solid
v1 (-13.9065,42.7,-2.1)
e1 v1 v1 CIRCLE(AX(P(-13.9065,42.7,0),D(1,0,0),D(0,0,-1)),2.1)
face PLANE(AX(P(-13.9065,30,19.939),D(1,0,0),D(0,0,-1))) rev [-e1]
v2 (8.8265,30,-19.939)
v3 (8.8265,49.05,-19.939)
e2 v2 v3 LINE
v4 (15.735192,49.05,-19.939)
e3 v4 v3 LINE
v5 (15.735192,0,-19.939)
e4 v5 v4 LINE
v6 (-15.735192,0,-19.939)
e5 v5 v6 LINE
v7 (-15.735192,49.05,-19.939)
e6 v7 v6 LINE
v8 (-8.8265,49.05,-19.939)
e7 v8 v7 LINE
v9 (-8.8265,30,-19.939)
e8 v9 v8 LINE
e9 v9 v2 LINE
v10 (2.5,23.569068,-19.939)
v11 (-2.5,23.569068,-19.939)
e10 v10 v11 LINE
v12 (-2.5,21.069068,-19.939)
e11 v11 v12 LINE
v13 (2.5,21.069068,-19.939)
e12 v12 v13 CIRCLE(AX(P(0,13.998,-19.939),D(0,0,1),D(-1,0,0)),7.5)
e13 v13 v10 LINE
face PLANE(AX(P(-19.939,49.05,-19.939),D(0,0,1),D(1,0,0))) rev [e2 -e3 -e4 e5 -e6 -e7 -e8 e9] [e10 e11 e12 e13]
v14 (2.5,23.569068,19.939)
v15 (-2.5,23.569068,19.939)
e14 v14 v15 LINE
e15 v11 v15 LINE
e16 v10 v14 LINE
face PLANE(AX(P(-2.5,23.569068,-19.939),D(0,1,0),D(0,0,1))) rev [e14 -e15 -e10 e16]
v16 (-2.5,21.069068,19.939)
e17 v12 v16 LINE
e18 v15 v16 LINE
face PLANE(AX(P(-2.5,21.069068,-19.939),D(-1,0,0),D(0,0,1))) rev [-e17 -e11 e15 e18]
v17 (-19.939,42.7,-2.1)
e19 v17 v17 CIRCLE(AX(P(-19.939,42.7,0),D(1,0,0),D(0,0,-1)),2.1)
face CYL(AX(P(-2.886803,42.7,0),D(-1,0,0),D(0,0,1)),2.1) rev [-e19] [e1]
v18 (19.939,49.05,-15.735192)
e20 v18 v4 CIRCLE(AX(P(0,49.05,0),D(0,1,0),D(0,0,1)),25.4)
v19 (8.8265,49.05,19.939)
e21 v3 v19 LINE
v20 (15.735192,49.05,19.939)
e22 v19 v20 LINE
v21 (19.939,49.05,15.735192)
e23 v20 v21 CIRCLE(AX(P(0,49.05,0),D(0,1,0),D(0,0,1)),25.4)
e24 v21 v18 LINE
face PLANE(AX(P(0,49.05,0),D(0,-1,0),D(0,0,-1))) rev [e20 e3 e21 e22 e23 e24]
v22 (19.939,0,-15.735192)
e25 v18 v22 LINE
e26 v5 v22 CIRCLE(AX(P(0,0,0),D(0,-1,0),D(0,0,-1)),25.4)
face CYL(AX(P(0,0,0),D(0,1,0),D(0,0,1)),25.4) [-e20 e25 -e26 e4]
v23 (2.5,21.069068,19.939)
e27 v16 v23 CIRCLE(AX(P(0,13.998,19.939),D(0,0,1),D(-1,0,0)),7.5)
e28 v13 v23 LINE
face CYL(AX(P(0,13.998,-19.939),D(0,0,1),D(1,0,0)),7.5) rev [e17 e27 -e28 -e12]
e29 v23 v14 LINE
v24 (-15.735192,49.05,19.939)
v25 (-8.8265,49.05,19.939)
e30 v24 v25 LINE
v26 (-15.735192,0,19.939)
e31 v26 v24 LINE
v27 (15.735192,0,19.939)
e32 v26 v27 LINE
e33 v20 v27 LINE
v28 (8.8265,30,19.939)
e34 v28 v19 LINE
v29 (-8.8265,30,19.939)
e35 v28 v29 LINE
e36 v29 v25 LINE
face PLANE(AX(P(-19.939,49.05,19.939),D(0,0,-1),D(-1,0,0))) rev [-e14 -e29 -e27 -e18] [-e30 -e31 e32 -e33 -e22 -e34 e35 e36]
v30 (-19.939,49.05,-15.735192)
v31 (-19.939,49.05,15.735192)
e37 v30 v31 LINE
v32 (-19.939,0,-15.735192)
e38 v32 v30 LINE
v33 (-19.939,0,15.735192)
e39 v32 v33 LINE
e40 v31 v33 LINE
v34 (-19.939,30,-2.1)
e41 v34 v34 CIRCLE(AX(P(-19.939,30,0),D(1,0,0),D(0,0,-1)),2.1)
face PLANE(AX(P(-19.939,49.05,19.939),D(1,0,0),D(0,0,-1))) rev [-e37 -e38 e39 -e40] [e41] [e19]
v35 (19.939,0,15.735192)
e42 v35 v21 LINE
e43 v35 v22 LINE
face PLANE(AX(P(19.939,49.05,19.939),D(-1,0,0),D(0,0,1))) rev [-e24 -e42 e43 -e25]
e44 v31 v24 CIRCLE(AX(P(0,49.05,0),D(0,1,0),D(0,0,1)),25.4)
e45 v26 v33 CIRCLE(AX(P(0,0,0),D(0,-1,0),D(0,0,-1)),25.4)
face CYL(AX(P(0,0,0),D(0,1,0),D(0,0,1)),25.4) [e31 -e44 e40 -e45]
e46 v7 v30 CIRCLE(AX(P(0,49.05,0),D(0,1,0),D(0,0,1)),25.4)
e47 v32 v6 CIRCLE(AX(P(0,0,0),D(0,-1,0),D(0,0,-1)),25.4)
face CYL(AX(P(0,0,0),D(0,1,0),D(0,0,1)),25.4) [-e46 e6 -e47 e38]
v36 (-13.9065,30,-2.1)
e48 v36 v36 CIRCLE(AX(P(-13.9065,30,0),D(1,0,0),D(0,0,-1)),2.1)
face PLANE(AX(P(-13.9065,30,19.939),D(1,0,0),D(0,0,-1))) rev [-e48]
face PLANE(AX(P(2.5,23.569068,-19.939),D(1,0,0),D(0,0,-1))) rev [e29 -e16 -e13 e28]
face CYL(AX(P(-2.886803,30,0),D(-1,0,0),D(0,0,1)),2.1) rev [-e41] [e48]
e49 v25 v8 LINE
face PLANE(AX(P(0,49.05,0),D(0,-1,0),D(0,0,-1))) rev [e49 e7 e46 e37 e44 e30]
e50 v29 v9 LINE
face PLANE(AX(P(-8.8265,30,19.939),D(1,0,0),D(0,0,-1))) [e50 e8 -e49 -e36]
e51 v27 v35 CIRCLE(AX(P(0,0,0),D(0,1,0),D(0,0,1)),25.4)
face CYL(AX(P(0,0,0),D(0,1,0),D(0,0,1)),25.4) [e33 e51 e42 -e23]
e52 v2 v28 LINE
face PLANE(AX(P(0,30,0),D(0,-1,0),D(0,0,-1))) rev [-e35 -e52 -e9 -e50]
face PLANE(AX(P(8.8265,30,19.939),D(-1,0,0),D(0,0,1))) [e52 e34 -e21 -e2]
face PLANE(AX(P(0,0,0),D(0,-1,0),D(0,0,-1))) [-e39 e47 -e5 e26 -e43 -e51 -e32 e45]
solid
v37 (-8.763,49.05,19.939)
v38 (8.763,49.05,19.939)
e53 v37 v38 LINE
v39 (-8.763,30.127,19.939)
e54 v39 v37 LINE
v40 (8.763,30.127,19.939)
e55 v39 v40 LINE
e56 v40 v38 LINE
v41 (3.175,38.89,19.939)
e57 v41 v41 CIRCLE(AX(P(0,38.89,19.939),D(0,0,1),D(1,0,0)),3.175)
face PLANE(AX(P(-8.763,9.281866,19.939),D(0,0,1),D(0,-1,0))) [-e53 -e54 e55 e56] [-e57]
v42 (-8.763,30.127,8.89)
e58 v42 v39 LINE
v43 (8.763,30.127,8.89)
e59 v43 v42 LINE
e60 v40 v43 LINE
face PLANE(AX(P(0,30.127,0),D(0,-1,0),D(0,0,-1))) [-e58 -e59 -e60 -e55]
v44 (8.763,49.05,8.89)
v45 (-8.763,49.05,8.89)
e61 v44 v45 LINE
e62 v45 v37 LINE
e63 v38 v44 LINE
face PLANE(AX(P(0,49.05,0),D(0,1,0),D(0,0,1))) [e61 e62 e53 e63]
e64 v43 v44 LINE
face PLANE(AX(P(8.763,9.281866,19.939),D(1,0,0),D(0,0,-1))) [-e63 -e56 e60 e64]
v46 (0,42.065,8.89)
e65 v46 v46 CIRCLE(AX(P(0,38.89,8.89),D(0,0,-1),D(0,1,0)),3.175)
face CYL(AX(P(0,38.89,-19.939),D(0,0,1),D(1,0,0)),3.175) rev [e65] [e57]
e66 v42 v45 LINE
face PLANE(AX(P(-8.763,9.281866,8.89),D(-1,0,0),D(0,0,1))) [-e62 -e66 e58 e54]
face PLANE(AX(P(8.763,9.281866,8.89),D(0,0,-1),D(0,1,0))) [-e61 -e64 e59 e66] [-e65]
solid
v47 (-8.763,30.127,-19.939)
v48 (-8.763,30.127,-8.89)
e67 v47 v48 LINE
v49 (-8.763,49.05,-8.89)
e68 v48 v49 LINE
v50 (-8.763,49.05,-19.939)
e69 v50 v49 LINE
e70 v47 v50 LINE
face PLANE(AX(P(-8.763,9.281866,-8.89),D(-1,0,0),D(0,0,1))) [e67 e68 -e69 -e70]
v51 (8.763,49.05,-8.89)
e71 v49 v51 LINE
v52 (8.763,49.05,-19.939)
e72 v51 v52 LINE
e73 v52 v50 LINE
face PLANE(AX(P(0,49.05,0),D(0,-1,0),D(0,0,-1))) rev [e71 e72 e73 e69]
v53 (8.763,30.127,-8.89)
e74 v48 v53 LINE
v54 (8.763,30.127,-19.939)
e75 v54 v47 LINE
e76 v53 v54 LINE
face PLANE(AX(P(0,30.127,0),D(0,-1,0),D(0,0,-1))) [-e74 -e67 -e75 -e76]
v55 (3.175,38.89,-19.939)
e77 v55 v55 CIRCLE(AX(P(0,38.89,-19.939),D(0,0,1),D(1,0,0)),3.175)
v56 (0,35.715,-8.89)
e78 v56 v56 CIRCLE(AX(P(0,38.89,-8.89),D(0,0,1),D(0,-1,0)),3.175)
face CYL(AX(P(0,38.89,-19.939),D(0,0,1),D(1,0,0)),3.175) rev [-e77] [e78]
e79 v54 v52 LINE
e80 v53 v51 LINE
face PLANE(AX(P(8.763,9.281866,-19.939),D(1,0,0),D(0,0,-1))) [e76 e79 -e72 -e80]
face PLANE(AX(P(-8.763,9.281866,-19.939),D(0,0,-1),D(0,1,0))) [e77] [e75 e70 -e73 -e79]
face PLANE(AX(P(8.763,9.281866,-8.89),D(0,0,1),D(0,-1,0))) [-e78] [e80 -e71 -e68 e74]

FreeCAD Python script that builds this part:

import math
import FreeCAD as App
import Part
import Sketcher

V = App.Vector
Q = App.Units.Quantity


def add_polygon(sketch, points):
    """Adds a closed chain of lines whose ends are joined by coincident constraints."""
    first, n = sketch.GeometryCount, len(points)
    for a, b in zip(points, points[1:] + points[:1]):
        sketch.addGeometry(Part.LineSegment(App.Vector(*a, 0), App.Vector(*b, 0)), False)
    for i in range(n):
        sketch.addConstraint(Sketcher.Constraint("Coincident", first + i, 2, first + (i + 1) % n, 1))

doc = App.newDocument("Part")
body = doc.addObject("PartDesign::Body", "Body")

sketch1 = body.newObject("Sketcher::SketchObject", "Sketch")
sketch1.AttachmentSupport = (doc.getObject("XZ_Plane"), [""])
sketch1.MapMode = "FlatFace"
add_polygon(sketch1, [(-19.939, -19.939), (-19.939, 19.939), (19.939, 19.939), (19.939, -19.939)])
sketch1.addConstraint(Sketcher.Constraint("Vertical", 0))
sketch1.addConstraint(Sketcher.Constraint("Horizontal", 1))
sketch1.addConstraint(Sketcher.Constraint("Vertical", 2))
sketch1.addConstraint(Sketcher.Constraint("Horizontal", 3))
sketch1.addConstraint(Sketcher.Constraint("Symmetric", 0, 2, 2, 2, -1, 1))
sketch1.addConstraint(Sketcher.Constraint("Equal", 3, 0))
sketch1.addConstraint(Sketcher.Constraint("DistanceX", 1, 1, 1, 2, Q("1.57 in")))
pad1 = body.newObject("PartDesign::Pad", "Pad")
pad1.Profile = sketch1
pad1.Length = 49.05
pad1.Reversed = True

sketch2 = body.newObject("Sketcher::SketchObject", "Sketch001")
sketch2.AttachmentSupport = (doc.getObject("XZ_Plane"), [""])
sketch2.MapMode = "FlatFace"
sketch2.AttachmentOffset = App.Placement(V(0, 0, -49.05), App.Rotation())
add_polygon(sketch2, [(-8.8265, 19.939), (-8.8265, -19.939), (8.8265, -19.939), (8.8265, 19.939)])
sketch2.addConstraint(Sketcher.Constraint("Vertical", 0))
sketch2.addConstraint(Sketcher.Constraint("Horizontal", 1))
sketch2.addConstraint(Sketcher.Constraint("Vertical", 2))
sketch2.addConstraint(Sketcher.Constraint("Horizontal", 3))
sketch2.addConstraint(Sketcher.Constraint("Symmetric", 0, 2, 2, 2, -1, 1))
sketch2.addConstraint(Sketcher.Constraint("DistanceY", 0, 2, 0, 1, Q("1.57 in")))
sketch2.addConstraint(Sketcher.Constraint("DistanceX", 1, 1, 1, 2, Q("0.695 in")))
pocket1 = body.newObject("PartDesign::Pocket", "Pocket")
pocket1.Profile = sketch2
pocket1.Length = Q("0.75 in")
pocket1.Reversed = True

sketch3 = body.newObject("Sketcher::SketchObject", "Sketch002")
sketch3.AttachmentSupport = (doc.getObject("XZ_Plane"), [""])
sketch3.MapMode = "FlatFace"
sketch3.AttachmentOffset = App.Placement(V(0, 0, -49.05), App.Rotation())
sketch3.addGeometry(Part.Circle(V(0, 0, 0), V(0, 0, 1), 30.48), False)
sketch3.addGeometry(Part.Circle(V(0, 0, 0), V(0, 0, 1), 25.4), False)
sketch3.addConstraint(Sketcher.Constraint("Coincident", 0, 3, -1, 1))
sketch3.addConstraint(Sketcher.Constraint("Coincident", 1, 3, -1, 1))
sketch3.addConstraint(Sketcher.Constraint("Diameter", 1, Q("2 in")))
sketch3.addConstraint(Sketcher.Constraint("Diameter", 0, Q("2.4 in")))
pocket2 = body.newObject("PartDesign::Pocket", "Pocket001")
pocket2.Profile = sketch3
pocket2.Type = "ThroughAll"
pocket2.Reversed = True

sketch4 = body.newObject("Sketcher::SketchObject", "Sketch003")
sketch4.AttachmentSupport = (doc.getObject("XY_Plane"), [""])
sketch4.MapMode = "FlatFace"
sketch4.AttachmentOffset = App.Placement(V(0, 0, 0.785 * 25.4), App.Rotation())
sketch4.addGeometry(Part.LineSegment(V(-2.5, 23.569068, 0), V(-2.5, 21.069068, 0)), False)
sketch4.addGeometry(Part.ArcOfCircle(Part.Circle(V(0, 13.998, 0), V(0, 0, 1), 7.5), math.radians(109.471221), math.radians(430.528779)), False)
sketch4.addGeometry(Part.LineSegment(V(2.5, 21.069068, 0), V(2.5, 23.569068, 0)), False)
sketch4.addGeometry(Part.LineSegment(V(2.5, 23.569068, 0), V(-2.5, 23.569068, 0)), False)
sketch4.addConstraint(Sketcher.Constraint("Coincident", 0, 2, 1, 1))
sketch4.addConstraint(Sketcher.Constraint("Coincident", 1, 2, 2, 1))
sketch4.addConstraint(Sketcher.Constraint("Coincident", 2, 2, 3, 1))
sketch4.addConstraint(Sketcher.Constraint("Coincident", 3, 2, 0, 1))
sketch4.addConstraint(Sketcher.Constraint("Vertical", 0))
sketch4.addConstraint(Sketcher.Constraint("Vertical", 2))
sketch4.addConstraint(Sketcher.Constraint("Horizontal", 3))
sketch4.addConstraint(Sketcher.Constraint("Symmetric", 0, 2, 1, 2, -2))
sketch4.addConstraint(Sketcher.Constraint("Radius", 1, Q("7.5 mm")))
sketch4.addConstraint(Sketcher.Constraint("DistanceX", 3, 2, 3, 1, Q("5 mm")))
sketch4.addConstraint(Sketcher.Constraint("DistanceY", 0, 2, 0, 1, Q("2.5 mm")))
sketch4.addConstraint(Sketcher.Constraint("DistanceY", -1, 1, 1, 3, Q("13.998 mm")))
pocket3 = body.newObject("PartDesign::Pocket", "Pocket002")
pocket3.Profile = sketch4
pocket3.Type = "ThroughAll"

sketch5 = body.newObject("Sketcher::SketchObject", "Sketch004")
sketch5.AttachmentSupport = (doc.getObject("YZ_Plane"), [""])
sketch5.MapMode = "FlatFace"
sketch5.AttachmentOffset = App.Placement(V(0, 0, -0.785 * 25.4), App.Rotation())
sketch5.addGeometry(Part.Circle(V(42.7, 0, 0), V(0, 0, 1), 2.1), False)
sketch5.addGeometry(Part.Circle(V(30, 0, 0), V(0, 0, 1), 2.1), False)
sketch5.addConstraint(Sketcher.Constraint("Equal", 0, 1))
sketch5.addConstraint(Sketcher.Constraint("PointOnObject", 0, 3, -1))
sketch5.addConstraint(Sketcher.Constraint("PointOnObject", 1, 3, -1))
sketch5.addConstraint(Sketcher.Constraint("DistanceX", 1, 3, 0, 3, Q("0.5 in")))
sketch5.addConstraint(Sketcher.Constraint("Diameter", 0, Q("4.2 mm")))
sketch5.addConstraint(Sketcher.Constraint("DistanceX", -1, 1, 0, 3, Q("42.7 mm")))
pocket4 = body.newObject("PartDesign::Pocket", "Pocket003")
pocket4.Profile = sketch5
pocket4.Length = Q("0.2375 in")
pocket4.Reversed = True
body2 = doc.addObject("PartDesign::Body", "Body001")

sketch6 = body2.newObject("Sketcher::SketchObject", "Sketch005")
sketch6.AttachmentSupport = (doc.getObject("XZ_Plane001"), [""])
sketch6.MapMode = "FlatFace"
sketch6.AttachmentOffset = App.Placement(V(0, 0, -49.05), App.Rotation())
add_polygon(sketch6, [(-8.763, 8.89), (-8.763, 19.939), (8.763, 19.939), (8.763, 8.89)])
sketch6.addConstraint(Sketcher.Constraint("Vertical", 0))
sketch6.addConstraint(Sketcher.Constraint("Horizontal", 1))
sketch6.addConstraint(Sketcher.Constraint("Vertical", 2))
sketch6.addConstraint(Sketcher.Constraint("Horizontal", 3))
sketch6.addConstraint(Sketcher.Constraint("DistanceX", 1, 1, 1, 2, Q("0.69 in")))
sketch6.addConstraint(Sketcher.Constraint("DistanceY", 0, 1, 0, 2, Q("0.435 in")))
sketch6.addConstraint(Sketcher.Constraint("DistanceY", -1, 1, 2, 2, Q("0.35 in")))
sketch6.addConstraint(Sketcher.Constraint("DistanceX", 0, 2, -1, 1, Q("0.345 in")))
pad2 = body2.newObject("PartDesign::Pad", "Pad001")
pad2.Profile = sketch6
pad2.Length = Q("0.745 in")
body3 = doc.addObject("PartDesign::Body", "Body002")

sketch7 = body3.newObject("Sketcher::SketchObject", "Sketch006")
sketch7.AttachmentSupport = (doc.getObject("XZ_Plane002"), [""])
sketch7.MapMode = "FlatFace"
sketch7.AttachmentOffset = App.Placement(V(0, 0, -49.05), App.Rotation())
add_polygon(sketch7, [(-8.763, -19.939), (-8.763, -8.89), (8.763, -8.89), (8.763, -19.939)])
sketch7.addConstraint(Sketcher.Constraint("Vertical", 0))
sketch7.addConstraint(Sketcher.Constraint("Horizontal", 1))
sketch7.addConstraint(Sketcher.Constraint("Vertical", 2))
sketch7.addConstraint(Sketcher.Constraint("Horizontal", 3))
sketch7.addConstraint(Sketcher.Constraint("DistanceX", 1, 1, 1, 2, Q("0.69 in")))
sketch7.addConstraint(Sketcher.Constraint("DistanceY", 0, 1, 0, 2, Q("0.435 in")))
sketch7.addConstraint(Sketcher.Constraint("DistanceY", 0, 2, -1, 1, Q("0.35 in")))
sketch7.addConstraint(Sketcher.Constraint("DistanceX", 0, 2, -1, 1, Q("0.345 in")))
pad3 = body3.newObject("PartDesign::Pad", "Pad002")
pad3.Profile = sketch7
pad3.Length = Q("0.745 in")
body4 = doc.addObject("PartDesign::Body", "Body003")

sketch8 = body4.newObject("Sketcher::SketchObject", "Sketch007")
sketch8.AttachmentSupport = (doc.getObject("XY_Plane003"), [""])
sketch8.MapMode = "FlatFace"
sketch8.AttachmentOffset = App.Placement(V(0, 0, 0.785 * 25.4), App.Rotation())
sketch8.addGeometry(Part.Circle(V(0, 38.89, 0), V(0, 0, 1), 3.175), False)
sketch8.addConstraint(Sketcher.Constraint("PointOnObject", 0, 3, -2))
sketch8.addConstraint(Sketcher.Constraint("Diameter", 0, Q("0.25 in")))
sketch8.addConstraint(Sketcher.Constraint("DistanceY", -1, 1, 0, 3, Q("38.89 mm")))
pad4 = body4.newObject("PartDesign::Pad", "Pad003")
pad4.Profile = sketch8
pad4.Length = 67.28515
pad4.Reversed = True
doc.recompute()

body5 = doc.addObject("PartDesign::Body", "Body004")
body5.BaseFeature = body4
boolean = body2.newObject("PartDesign::Boolean", "Boolean")
boolean.Type = "Cut"
boolean.addObjects([body5])
doc.recompute()

boolean2 = body3.newObject("PartDesign::Boolean", "Boolean001")
boolean2.Type = "Cut"
boolean2.addObjects([body4])

doc.recompute()
